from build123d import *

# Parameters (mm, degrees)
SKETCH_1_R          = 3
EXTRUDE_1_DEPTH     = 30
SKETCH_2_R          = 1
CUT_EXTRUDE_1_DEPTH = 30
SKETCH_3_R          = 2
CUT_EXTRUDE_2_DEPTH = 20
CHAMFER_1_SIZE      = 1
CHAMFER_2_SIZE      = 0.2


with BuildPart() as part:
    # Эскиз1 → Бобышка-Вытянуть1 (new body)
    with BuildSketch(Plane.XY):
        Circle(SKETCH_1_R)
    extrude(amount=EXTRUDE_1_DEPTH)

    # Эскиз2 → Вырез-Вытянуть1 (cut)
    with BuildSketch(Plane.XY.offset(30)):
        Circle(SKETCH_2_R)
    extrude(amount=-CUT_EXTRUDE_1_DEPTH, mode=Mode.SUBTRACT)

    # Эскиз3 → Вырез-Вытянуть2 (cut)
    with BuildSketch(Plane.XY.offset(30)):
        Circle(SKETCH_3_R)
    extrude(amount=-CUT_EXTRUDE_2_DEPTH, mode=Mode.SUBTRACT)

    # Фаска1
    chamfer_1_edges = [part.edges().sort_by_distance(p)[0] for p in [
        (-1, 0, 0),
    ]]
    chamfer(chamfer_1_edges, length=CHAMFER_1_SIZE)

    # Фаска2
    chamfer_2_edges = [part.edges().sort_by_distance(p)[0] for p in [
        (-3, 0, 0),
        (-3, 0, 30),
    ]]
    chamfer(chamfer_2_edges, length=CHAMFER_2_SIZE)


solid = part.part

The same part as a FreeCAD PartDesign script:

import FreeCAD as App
import Part
import Sketcher
Q = App.Units.Quantity


def edges_at(feature, points):
    """Names of the edges that pass closest to the given points."""
    edges = feature.Shape.Edges
    near = lambda p: min(range(len(edges)), key=lambda i: edges[i].distToShape(Part.Vertex(*p))[0])
    return sorted({f"Edge{near(p) + 1}" for p in points})

doc = App.newDocument("Part")
params = doc.addObject("Spreadsheet::Sheet", "Params")
for row, (alias, value) in enumerate([
    ("sketch1_diameter", "6 mm"),
    ("pad1_length", "30 mm"),
    ("sketch2_diameter", "2 mm"),
    ("pocket1_length", "30 mm"),
    ("sketch3_diameter", "4 mm"),
    ("pocket2_length", "20 mm"),
    ("chamfer_size", "1 mm"),
    ("chamfer2_size", "0.2 mm"),
], start=1):
    params.set(f"A{row}", alias)
    params.set(f"B{row}", "=" + value)
    params.setAlias(f"B{row}", alias)

body = doc.addObject("PartDesign::Body", "Body")

sketch1 = body.newObject("Sketcher::SketchObject", "Sketch")
sketch1.AttachmentSupport = (doc.getObject("XY_Plane"), [""])
sketch1.MapMode = "FlatFace"
sketch1.addGeometry(Part.Circle(App.Vector(0, 0, 0), App.Vector(0, 0, 1), 3), False)
sketch1.addConstraint(Sketcher.Constraint("Coincident", 0, 3, -1, 1))
sketch1.addConstraint(Sketcher.Constraint("Diameter", 0, Q("6 mm")))
sketch1.setExpression("Constraints[1]", "Params.sketch1_diameter")
pad1 = body.newObject("PartDesign::Pad", "Pad")
pad1.Profile = sketch1
pad1.setExpression("Length", "Params.pad1_length")

sketch2 = body.newObject("Sketcher::SketchObject", "Sketch001")
sketch2.AttachmentSupport = (doc.getObject("XY_Plane"), [""])
sketch2.MapMode = "FlatFace"
sketch2.AttachmentOffset = App.Placement(App.Vector(0, 0, 30), App.Rotation())
sketch2.addGeometry(Part.Circle(App.Vector(0, 0, 0), App.Vector(0, 0, 1), 1), False)
sketch2.addConstraint(Sketcher.Constraint("Coincident", 0, 3, -1, 1))
sketch2.addConstraint(Sketcher.Constraint("Diameter", 0, Q("2 mm")))
sketch2.setExpression("Constraints[1]", "Params.sketch2_diameter")
pocket1 = body.newObject("PartDesign::Pocket", "Pocket")
pocket1.Profile = sketch2
pocket1.setExpression("Length", "Params.pocket1_length")

sketch3 = body.newObject("Sketcher::SketchObject", "Sketch002")
sketch3.AttachmentSupport = (doc.getObject("XY_Plane"), [""])
sketch3.MapMode = "FlatFace"
sketch3.AttachmentOffset = App.Placement(App.Vector(0, 0, 30), App.Rotation())
sketch3.addGeometry(Part.Circle(App.Vector(0, 0, 0), App.Vector(0, 0, 1), 2), False)
sketch3.addConstraint(Sketcher.Constraint("Coincident", 0, 3, -1, 1))
sketch3.addConstraint(Sketcher.Constraint("Diameter", 0, Q("4 mm")))
sketch3.setExpression("Constraints[1]", "Params.sketch3_diameter")
pocket2 = body.newObject("PartDesign::Pocket", "Pocket001")
pocket2.Profile = sketch3
pocket2.setExpression("Length", "Params.pocket2_length")
doc.recompute()

chamfer = body.newObject("PartDesign::Chamfer", "Chamfer")
chamfer.Base = (pocket2, edges_at(pocket2, [(-1, 0, 0)]))
chamfer.setExpression("Size", "Params.chamfer_size")
doc.recompute()

chamfer2 = body.newObject("PartDesign::Chamfer", "Chamfer001")
chamfer2.Base = (chamfer, edges_at(chamfer, [(-3, 0, 0), (-3, 0, 30)]))
chamfer2.setExpression("Size", "Params.chamfer2_size")

doc.recompute()
